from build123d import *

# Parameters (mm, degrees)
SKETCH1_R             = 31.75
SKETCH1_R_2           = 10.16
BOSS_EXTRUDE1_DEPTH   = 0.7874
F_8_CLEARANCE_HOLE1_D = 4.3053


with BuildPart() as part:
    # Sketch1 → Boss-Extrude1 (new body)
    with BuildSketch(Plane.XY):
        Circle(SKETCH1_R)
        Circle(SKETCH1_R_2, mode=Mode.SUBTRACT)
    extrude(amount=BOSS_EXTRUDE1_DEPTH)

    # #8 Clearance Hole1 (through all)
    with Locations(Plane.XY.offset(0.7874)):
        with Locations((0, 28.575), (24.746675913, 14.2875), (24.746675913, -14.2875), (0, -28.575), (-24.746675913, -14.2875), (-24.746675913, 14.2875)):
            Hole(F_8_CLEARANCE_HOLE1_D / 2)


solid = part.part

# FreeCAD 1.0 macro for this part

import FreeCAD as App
import Part
import Sketcher

V = App.Vector
Q = App.Units.Quantity

doc = App.newDocument("Part")
body = doc.addObject("PartDesign::Body", "Body")

# Sketch on XY plane
sketch1 = doc.addObject("Sketcher::SketchObject", "Sketch")
body.addObject(sketch1)
sketch1.AttachmentSupport = (doc.XY_Plane, [""])
sketch1.MapMode = "FlatFace"
sketch1.addGeometry([
    Part.Circle(V(0, 0, 0), V(0, 0, 1), 32),
    Part.Circle(V(0, 0, 0), V(0, 0, 1), 10),
], False)
sketch1.addConstraint([
    Sketcher.Constraint("Coincident", 0, 3, -1, 1),
    Sketcher.Constraint("Coincident", 1, 3, -1, 1),
    Sketcher.Constraint("Diameter", 0, Q("2.5 in")),
    Sketcher.Constraint("Diameter", 1, Q("0.8 in")),
])
pad1 = doc.addObject("PartDesign::Pad", "Pad")
body.addObject(pad1)
pad1.Profile = sketch1
pad1.Length = Q("0.031 in")

# Sketch on XY plane
sketch2 = doc.addObject("Sketcher::SketchObject", "Sketch001")
body.addObject(sketch2)
sketch2.AttachmentSupport = (doc.XY_Plane, [""])
sketch2.MapMode = "FlatFace"
sketch2.AttachmentOffset = App.Placement(V(0, 0, 0.031 * 25.4), App.Rotation())
sketch2.addGeometry([
    Part.Circle(V(0, 28.6, 0), V(0, 0, 1), 2.2),  # 0
    Part.Circle(V(24.7, 14.3, 0), V(0, 0, 1), 2.2),  # 1
    Part.Circle(V(24.7, -14.3, 0), V(0, 0, 1), 2.2),  # 2
    Part.Circle(V(0, -28.6, 0), V(0, 0, 1), 2.2),  # 3
    Part.Circle(V(-24.7, -14.3, 0), V(0, 0, 1), 2.2),  # 4
    Part.Circle(V(-24.7, 14.3, 0), V(0, 0, 1), 2.2),  # 5
], False)
sketch2.addConstraint([
    Sketcher.Constraint("Equal", 0, 1),
    Sketcher.Constraint("Equal", 1, 2),
    Sketcher.Constraint("Equal", 2, 3),
    Sketcher.Constraint("Equal", 3, 4),
    Sketcher.Constraint("Equal", 4, 5),
    Sketcher.Constraint("Symmetric", 0, 3, 3, 3, -1, 1),
    Sketcher.Constraint("Symmetric", 1, 3, 4, 3, -1, 1),
    Sketcher.Constraint("Symmetric", 2, 3, 5, 3, -1, 1),
    Sketcher.Constraint("Symmetric", 2, 3, 4, 3, -2),
    Sketcher.Constraint("PointOnObject", 0, 3, -2),
    Sketcher.Constraint("Diameter", 0, Q("0.1695 in")),
    Sketcher.Constraint("DistanceY", 3, 3, 0, 3, Q("2.25 in")),
    Sketcher.Constraint("DistanceY", -1, 1, 1, 3, Q("0.5625 in")),
    Sketcher.Constraint("DistanceX", 4, 3, 2, 3, Q("49.493352 mm")),
])
doc.recompute()
hole = doc.addObject("PartDesign::Hole", "Hole")
body.addObject(hole)
hole.Profile = sketch2
hole.ThreadType = "None"
hole.Diameter = Q("0.1695 in")
hole.DepthType = "ThroughAll"

doc.recompute()
